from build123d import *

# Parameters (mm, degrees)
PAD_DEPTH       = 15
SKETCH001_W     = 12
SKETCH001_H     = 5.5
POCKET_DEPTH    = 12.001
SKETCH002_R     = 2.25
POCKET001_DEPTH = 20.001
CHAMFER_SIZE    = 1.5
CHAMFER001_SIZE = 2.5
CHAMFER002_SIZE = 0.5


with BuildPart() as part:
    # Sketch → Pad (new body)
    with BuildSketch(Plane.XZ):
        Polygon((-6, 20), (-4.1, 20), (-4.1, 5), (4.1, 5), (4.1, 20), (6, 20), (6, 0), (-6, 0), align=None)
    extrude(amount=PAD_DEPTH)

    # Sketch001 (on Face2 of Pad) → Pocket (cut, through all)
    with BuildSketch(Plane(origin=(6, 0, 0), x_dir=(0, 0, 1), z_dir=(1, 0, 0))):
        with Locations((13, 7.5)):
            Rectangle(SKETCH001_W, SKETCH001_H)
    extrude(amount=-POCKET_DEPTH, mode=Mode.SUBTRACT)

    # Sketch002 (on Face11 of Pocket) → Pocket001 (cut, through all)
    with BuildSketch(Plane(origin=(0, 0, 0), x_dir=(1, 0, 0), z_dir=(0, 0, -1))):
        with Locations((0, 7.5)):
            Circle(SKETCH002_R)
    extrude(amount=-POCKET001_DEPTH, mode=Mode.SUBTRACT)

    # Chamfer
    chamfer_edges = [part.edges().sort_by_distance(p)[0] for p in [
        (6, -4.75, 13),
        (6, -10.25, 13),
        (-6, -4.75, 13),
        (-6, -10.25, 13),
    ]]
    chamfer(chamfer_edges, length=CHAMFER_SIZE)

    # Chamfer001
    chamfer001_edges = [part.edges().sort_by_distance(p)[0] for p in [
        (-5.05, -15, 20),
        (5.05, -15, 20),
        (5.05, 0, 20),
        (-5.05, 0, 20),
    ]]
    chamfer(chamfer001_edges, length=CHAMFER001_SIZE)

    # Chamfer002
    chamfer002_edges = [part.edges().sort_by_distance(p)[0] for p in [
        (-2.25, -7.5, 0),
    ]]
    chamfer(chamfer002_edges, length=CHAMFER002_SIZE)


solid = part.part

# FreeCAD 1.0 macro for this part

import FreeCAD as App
import Part
import Sketcher
from FreeCAD import Vector


def edges_at(feature, points):
    """Names of the edges that pass closest to the given points."""
    edges = feature.Shape.Edges
    near = lambda p: min(range(len(edges)), key=lambda i: edges[i].distToShape(Part.Vertex(*p))[0])
    return sorted({f"Edge{near(p) + 1}" for p in points})


def add_polygon(sketch, points):
    """Adds a closed chain of lines whose ends are joined by coincident constraints."""
    first, n = sketch.GeometryCount, len(points)
    for a, b in zip(points, points[1:] + points[:1]):
        sketch.addGeometry(Part.LineSegment(App.Vector(*a, 0), App.Vector(*b, 0)), False)
    for i in range(n):
        sketch.addConstraint(Sketcher.Constraint("Coincident", first + i, 2, first + (i + 1) % n, 1))

doc = App.newDocument("Part")
body = doc.addObject("PartDesign::Body", "Body")

# Sketch on XZ plane
sketch1 = body.newObject("Sketcher::SketchObject", "Sketch")
sketch1.AttachmentSupport = (doc.getObject("XZ_Plane"), [""])
sketch1.MapMode = "FlatFace"
add_polygon(sketch1, [(-4.1, 20), (-6, 20), (-6, 0), (6, 0), (6, 20), (4.1, 20), (4.1, 5), (-4.1, 5)])  # lines 0-7
sketch1.addConstraint([
    Sketcher.Constraint("Horizontal", 0),
    Sketcher.Constraint("Vertical", 1),
    Sketcher.Constraint("Horizontal", 2),
    Sketcher.Constraint("Vertical", 3),
    Sketcher.Constraint("Horizontal", 4),
    Sketcher.Constraint("Vertical", 5),
    Sketcher.Constraint("Horizontal", 6),
    Sketcher.Constraint("Vertical", 7),
    Sketcher.Constraint("Symmetric", 1, 2, 2, 2, -1, 1),
    Sketcher.Constraint("Symmetric", 4, 2, 7, 2, -2),
    Sketcher.Constraint("DistanceX", 2, 1, 2, 2, 12.0),
    Sketcher.Constraint("DistanceY", 1, 2, 1, 1, 20.0),
    Sketcher.Constraint("DistanceY", 5, 2, 5, 1, 15.0),
    Sketcher.Constraint("DistanceX", 0, 2, 0, 1, 1.9),
])
pad1 = body.newObject("PartDesign::Pad", "Pad")
pad1.Profile = sketch1
pad1.Length = 15

# Sketch on YZ plane
sketch2 = body.newObject("Sketcher::SketchObject", "Sketch001")
sketch2.AttachmentSupport = (doc.getObject("YZ_Plane"), [""])
sketch2.MapMode = "FlatFace"
sketch2.AttachmentOffset = App.Placement(Vector(0, 0, 6), App.Rotation())
add_polygon(sketch2, [(-10.25, 7), (-4.75, 7), (-4.75, 19), (-10.25, 19)])  # lines 0-3
sketch2.addConstraint([
    Sketcher.Constraint("Horizontal", 0),
    Sketcher.Constraint("Vertical", 1),
    Sketcher.Constraint("Horizontal", 2),
    Sketcher.Constraint("Vertical", 3),
    Sketcher.Constraint("DistanceY", 1, 1, 1, 2, 12.0),
    Sketcher.Constraint("DistanceX", 0, 1, 0, 2, 5.5),
    Sketcher.Constraint("DistanceY", -1, 1, 0, 2, 7.0),
    Sketcher.Constraint("DistanceX", 0, 2, -1, 1, 4.75),
])
pocket1 = body.newObject("PartDesign::Pocket", "Pocket")
pocket1.Profile = sketch2
pocket1.Type = "ThroughAll"

# Sketch on XY plane
sketch3 = body.newObject("Sketcher::SketchObject", "Sketch002")
sketch3.AttachmentSupport = (doc.getObject("XY_Plane"), [""])
sketch3.MapMode = "FlatFace"
sketch3.addGeometry(Part.Circle(Vector(0, -7.5, 0), Vector(0, 0, 1), 2.25), False)
sketch3.addConstraint([
    Sketcher.Constraint("PointOnObject", 0, 3, -2),
    Sketcher.Constraint("Diameter", 0, 4.5),
    Sketcher.Constraint("DistanceY", 0, 3, -1, 1, 7.5),
])
pocket2 = body.newObject("PartDesign::Pocket", "Pocket001")
pocket2.Profile = sketch3
pocket2.Type = "ThroughAll"
pocket2.Reversed = True
doc.recompute()

chamfer = body.newObject("PartDesign::Chamfer", "Chamfer")
chamfer.Base = (pocket2, edges_at(pocket2, [
    (6, -4.75, 13),
    (6, -10.25, 13),
    (-6, -4.75, 13),
    (-6, -10.25, 13),
]))
chamfer.Size = 1.5
doc.recompute()

chamfer2 = body.newObject("PartDesign::Chamfer", "Chamfer001")
chamfer2.Base = (chamfer, edges_at(chamfer, [
    (-5.05, -15, 20),
    (5.05, -15, 20),
    (5.05, 0, 20),
    (-5.05, 0, 20),
]))
chamfer2.Size = 2.5
doc.recompute()

chamfer3 = body.newObject("PartDesign::Chamfer", "Chamfer002")
chamfer3.Base = (chamfer2, edges_at(chamfer2, [(-2.25, -7.5, 0)]))
chamfer3.Size = 0.5

doc.recompute()
